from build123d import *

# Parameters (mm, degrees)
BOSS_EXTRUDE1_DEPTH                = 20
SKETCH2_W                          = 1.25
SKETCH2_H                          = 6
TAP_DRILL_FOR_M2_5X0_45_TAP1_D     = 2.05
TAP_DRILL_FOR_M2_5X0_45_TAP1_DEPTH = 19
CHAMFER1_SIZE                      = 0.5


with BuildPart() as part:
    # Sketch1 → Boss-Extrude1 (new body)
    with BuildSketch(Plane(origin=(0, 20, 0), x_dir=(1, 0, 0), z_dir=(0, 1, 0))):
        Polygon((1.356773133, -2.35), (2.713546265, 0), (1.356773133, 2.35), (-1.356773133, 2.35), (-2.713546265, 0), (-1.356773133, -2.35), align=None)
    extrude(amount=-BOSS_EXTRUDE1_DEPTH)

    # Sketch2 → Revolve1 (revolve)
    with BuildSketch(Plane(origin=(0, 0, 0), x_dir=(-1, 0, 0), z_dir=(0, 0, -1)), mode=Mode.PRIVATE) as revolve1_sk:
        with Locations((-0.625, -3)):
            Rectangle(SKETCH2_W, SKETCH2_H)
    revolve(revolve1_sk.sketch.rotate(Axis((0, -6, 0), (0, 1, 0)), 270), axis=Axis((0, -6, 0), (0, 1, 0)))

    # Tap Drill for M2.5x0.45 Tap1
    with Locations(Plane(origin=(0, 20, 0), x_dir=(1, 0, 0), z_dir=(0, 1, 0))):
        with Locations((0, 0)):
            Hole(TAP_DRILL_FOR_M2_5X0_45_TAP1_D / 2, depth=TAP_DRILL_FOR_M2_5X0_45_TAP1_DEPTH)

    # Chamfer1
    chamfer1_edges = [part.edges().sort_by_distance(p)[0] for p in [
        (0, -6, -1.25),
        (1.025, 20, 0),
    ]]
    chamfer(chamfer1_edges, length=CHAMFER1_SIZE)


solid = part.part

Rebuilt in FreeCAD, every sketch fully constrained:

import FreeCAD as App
import Part
import Sketcher

V = App.Vector
Q = App.Units.Quantity


def edges_at(feature, points):
    """Names of the edges that pass closest to the given points."""
    edges = feature.Shape.Edges
    near = lambda p: min(range(len(edges)), key=lambda i: edges[i].distToShape(Part.Vertex(*p))[0])
    return sorted({f"Edge{near(p) + 1}" for p in points})

doc = App.newDocument("Part")
body = doc.addObject("PartDesign::Body", "Body")

# Sketch on XZ plane
sketch1 = doc.addObject("Sketcher::SketchObject", "Sketch")
body.addObject(sketch1)
sketch1.AttachmentSupport = (doc.XZ_Plane, [""])
sketch1.MapMode = "FlatFace"
sketch1.AttachmentOffset = App.Placement(V(0, 0, -20), App.Rotation())
sketch1.addGeometry([
    Part.LineSegment(V(1.4, 2.4, 0), V(2.7, 0, 0)),  # 0
    Part.LineSegment(V(2.7, 0, 0), V(1.4, -2.4, 0)),  # 1
    Part.LineSegment(V(1.4, -2.4, 0), V(-1.4, -2.4, 0)),  # 2
    Part.LineSegment(V(-1.4, -2.4, 0), V(-2.7, 0, 0)),  # 3
    Part.LineSegment(V(-2.7, 0, 0), V(-1.4, 2.4, 0)),  # 4
    Part.LineSegment(V(-1.4, 2.4, 0), V(1.4, 2.4, 0)),  # 5
], False)
sketch1.addConstraint([
    Sketcher.Constraint("Coincident", 0, 2, 1, 1),
    Sketcher.Constraint("Coincident", 1, 2, 2, 1),
    Sketcher.Constraint("Coincident", 2, 2, 3, 1),
    Sketcher.Constraint("Coincident", 3, 2, 4, 1),
    Sketcher.Constraint("Coincident", 4, 2, 5, 1),
    Sketcher.Constraint("Coincident", 5, 2, 0, 1),
    Sketcher.Constraint("Horizontal", 2),
    Sketcher.Constraint("Horizontal", 5),
    Sketcher.Constraint("Symmetric", 0, 2, 3, 2, -1, 1),
    Sketcher.Constraint("Symmetric", 1, 2, 4, 2, -1, 1),
    Sketcher.Constraint("PointOnObject", 0, 2, -1),
    Sketcher.Constraint("Parallel", 0, 3),
    Sketcher.Constraint("Vertical", 2, 2, 4, 2),
    Sketcher.Constraint("Angle", 0, Q("-60 deg")),
    Sketcher.Constraint("DistanceY", 2, 2, 4, 2, Q("4.7 mm")),
    Sketcher.Constraint("DistanceX", 2, 2, 2, 1, Q("2.713546 mm")),
])
pad1 = doc.addObject("PartDesign::Pad", "Pad")
body.addObject(pad1)
pad1.Profile = sketch1
pad1.Length = 20

# Sketch on XY plane
sketch2 = doc.addObject("Sketcher::SketchObject", "Sketch001")
body.addObject(sketch2)
sketch2.AttachmentSupport = (doc.XY_Plane, [""])
sketch2.MapMode = "FlatFace"
sketch2.addGeometry([
    Part.LineSegment(V(1.2, 0, 0), V(1.2, -6, 0)),
    Part.LineSegment(V(1.2, -6, 0), V(0, -6, 0)),
    Part.LineSegment(V(0, -6, 0), V(0, 0, 0)),
    Part.LineSegment(V(0, 0, 0), V(1.2, 0, 0)),
], False)
sketch2.addConstraint([
    Sketcher.Constraint("Coincident", 0, 2, 1, 1),
    Sketcher.Constraint("Coincident", 1, 2, 2, 1),
    Sketcher.Constraint("Coincident", 2, 2, 3, 1),
    Sketcher.Constraint("Coincident", 3, 2, 0, 1),
    Sketcher.Constraint("Vertical", 0),
    Sketcher.Constraint("Horizontal", 1),
    Sketcher.Constraint("Vertical", 2),
    Sketcher.Constraint("Horizontal", 3),
    Sketcher.Constraint("Coincident", 2, 2, -1, 1),
    Sketcher.Constraint("DistanceY", 0, 2, 0, 1, Q("6 mm")),
    Sketcher.Constraint("DistanceX", 1, 2, 1, 1, Q("1.25 mm")),
])
revolution = doc.addObject("PartDesign::Revolution", "Revolution")
body.addObject(revolution)
revolution.Profile = sketch2
revolution.ReferenceAxis = (sketch2, ["V_Axis"])
revolution.Angle = 360

# Sketch on XZ plane
sketch3 = doc.addObject("Sketcher::SketchObject", "Sketch002")
body.addObject(sketch3)
sketch3.AttachmentSupport = (doc.XZ_Plane, [""])
sketch3.MapMode = "FlatFace"
sketch3.AttachmentOffset = App.Placement(V(0, 0, -20), App.Rotation())
sketch3.addGeometry(Part.Circle(V(0, 0, 0), V(0, 0, 1), 1), False)
sketch3.addConstraint([
    Sketcher.Constraint("Coincident", 0, 3, -1, 1),
    Sketcher.Constraint("Diameter", 0, Q("2.05 mm")),
])
doc.recompute()
hole = doc.addObject("PartDesign::Hole", "Hole")
body.addObject(hole)
hole.Profile = sketch3
hole.ThreadType = "None"
hole.Diameter = 2.05
hole.DepthType = "Dimension"
hole.Depth = 19
hole.DrillPoint = "Flat"
hole.Reversed = True
doc.recompute()

chamfer = doc.addObject("PartDesign::Chamfer", "Chamfer")
body.addObject(chamfer)
chamfer.Base = (hole, edges_at(hole, [(0, -6, -1.25), (1.025, 20, 0)]))
chamfer.Size = 0.5

doc.recompute()
